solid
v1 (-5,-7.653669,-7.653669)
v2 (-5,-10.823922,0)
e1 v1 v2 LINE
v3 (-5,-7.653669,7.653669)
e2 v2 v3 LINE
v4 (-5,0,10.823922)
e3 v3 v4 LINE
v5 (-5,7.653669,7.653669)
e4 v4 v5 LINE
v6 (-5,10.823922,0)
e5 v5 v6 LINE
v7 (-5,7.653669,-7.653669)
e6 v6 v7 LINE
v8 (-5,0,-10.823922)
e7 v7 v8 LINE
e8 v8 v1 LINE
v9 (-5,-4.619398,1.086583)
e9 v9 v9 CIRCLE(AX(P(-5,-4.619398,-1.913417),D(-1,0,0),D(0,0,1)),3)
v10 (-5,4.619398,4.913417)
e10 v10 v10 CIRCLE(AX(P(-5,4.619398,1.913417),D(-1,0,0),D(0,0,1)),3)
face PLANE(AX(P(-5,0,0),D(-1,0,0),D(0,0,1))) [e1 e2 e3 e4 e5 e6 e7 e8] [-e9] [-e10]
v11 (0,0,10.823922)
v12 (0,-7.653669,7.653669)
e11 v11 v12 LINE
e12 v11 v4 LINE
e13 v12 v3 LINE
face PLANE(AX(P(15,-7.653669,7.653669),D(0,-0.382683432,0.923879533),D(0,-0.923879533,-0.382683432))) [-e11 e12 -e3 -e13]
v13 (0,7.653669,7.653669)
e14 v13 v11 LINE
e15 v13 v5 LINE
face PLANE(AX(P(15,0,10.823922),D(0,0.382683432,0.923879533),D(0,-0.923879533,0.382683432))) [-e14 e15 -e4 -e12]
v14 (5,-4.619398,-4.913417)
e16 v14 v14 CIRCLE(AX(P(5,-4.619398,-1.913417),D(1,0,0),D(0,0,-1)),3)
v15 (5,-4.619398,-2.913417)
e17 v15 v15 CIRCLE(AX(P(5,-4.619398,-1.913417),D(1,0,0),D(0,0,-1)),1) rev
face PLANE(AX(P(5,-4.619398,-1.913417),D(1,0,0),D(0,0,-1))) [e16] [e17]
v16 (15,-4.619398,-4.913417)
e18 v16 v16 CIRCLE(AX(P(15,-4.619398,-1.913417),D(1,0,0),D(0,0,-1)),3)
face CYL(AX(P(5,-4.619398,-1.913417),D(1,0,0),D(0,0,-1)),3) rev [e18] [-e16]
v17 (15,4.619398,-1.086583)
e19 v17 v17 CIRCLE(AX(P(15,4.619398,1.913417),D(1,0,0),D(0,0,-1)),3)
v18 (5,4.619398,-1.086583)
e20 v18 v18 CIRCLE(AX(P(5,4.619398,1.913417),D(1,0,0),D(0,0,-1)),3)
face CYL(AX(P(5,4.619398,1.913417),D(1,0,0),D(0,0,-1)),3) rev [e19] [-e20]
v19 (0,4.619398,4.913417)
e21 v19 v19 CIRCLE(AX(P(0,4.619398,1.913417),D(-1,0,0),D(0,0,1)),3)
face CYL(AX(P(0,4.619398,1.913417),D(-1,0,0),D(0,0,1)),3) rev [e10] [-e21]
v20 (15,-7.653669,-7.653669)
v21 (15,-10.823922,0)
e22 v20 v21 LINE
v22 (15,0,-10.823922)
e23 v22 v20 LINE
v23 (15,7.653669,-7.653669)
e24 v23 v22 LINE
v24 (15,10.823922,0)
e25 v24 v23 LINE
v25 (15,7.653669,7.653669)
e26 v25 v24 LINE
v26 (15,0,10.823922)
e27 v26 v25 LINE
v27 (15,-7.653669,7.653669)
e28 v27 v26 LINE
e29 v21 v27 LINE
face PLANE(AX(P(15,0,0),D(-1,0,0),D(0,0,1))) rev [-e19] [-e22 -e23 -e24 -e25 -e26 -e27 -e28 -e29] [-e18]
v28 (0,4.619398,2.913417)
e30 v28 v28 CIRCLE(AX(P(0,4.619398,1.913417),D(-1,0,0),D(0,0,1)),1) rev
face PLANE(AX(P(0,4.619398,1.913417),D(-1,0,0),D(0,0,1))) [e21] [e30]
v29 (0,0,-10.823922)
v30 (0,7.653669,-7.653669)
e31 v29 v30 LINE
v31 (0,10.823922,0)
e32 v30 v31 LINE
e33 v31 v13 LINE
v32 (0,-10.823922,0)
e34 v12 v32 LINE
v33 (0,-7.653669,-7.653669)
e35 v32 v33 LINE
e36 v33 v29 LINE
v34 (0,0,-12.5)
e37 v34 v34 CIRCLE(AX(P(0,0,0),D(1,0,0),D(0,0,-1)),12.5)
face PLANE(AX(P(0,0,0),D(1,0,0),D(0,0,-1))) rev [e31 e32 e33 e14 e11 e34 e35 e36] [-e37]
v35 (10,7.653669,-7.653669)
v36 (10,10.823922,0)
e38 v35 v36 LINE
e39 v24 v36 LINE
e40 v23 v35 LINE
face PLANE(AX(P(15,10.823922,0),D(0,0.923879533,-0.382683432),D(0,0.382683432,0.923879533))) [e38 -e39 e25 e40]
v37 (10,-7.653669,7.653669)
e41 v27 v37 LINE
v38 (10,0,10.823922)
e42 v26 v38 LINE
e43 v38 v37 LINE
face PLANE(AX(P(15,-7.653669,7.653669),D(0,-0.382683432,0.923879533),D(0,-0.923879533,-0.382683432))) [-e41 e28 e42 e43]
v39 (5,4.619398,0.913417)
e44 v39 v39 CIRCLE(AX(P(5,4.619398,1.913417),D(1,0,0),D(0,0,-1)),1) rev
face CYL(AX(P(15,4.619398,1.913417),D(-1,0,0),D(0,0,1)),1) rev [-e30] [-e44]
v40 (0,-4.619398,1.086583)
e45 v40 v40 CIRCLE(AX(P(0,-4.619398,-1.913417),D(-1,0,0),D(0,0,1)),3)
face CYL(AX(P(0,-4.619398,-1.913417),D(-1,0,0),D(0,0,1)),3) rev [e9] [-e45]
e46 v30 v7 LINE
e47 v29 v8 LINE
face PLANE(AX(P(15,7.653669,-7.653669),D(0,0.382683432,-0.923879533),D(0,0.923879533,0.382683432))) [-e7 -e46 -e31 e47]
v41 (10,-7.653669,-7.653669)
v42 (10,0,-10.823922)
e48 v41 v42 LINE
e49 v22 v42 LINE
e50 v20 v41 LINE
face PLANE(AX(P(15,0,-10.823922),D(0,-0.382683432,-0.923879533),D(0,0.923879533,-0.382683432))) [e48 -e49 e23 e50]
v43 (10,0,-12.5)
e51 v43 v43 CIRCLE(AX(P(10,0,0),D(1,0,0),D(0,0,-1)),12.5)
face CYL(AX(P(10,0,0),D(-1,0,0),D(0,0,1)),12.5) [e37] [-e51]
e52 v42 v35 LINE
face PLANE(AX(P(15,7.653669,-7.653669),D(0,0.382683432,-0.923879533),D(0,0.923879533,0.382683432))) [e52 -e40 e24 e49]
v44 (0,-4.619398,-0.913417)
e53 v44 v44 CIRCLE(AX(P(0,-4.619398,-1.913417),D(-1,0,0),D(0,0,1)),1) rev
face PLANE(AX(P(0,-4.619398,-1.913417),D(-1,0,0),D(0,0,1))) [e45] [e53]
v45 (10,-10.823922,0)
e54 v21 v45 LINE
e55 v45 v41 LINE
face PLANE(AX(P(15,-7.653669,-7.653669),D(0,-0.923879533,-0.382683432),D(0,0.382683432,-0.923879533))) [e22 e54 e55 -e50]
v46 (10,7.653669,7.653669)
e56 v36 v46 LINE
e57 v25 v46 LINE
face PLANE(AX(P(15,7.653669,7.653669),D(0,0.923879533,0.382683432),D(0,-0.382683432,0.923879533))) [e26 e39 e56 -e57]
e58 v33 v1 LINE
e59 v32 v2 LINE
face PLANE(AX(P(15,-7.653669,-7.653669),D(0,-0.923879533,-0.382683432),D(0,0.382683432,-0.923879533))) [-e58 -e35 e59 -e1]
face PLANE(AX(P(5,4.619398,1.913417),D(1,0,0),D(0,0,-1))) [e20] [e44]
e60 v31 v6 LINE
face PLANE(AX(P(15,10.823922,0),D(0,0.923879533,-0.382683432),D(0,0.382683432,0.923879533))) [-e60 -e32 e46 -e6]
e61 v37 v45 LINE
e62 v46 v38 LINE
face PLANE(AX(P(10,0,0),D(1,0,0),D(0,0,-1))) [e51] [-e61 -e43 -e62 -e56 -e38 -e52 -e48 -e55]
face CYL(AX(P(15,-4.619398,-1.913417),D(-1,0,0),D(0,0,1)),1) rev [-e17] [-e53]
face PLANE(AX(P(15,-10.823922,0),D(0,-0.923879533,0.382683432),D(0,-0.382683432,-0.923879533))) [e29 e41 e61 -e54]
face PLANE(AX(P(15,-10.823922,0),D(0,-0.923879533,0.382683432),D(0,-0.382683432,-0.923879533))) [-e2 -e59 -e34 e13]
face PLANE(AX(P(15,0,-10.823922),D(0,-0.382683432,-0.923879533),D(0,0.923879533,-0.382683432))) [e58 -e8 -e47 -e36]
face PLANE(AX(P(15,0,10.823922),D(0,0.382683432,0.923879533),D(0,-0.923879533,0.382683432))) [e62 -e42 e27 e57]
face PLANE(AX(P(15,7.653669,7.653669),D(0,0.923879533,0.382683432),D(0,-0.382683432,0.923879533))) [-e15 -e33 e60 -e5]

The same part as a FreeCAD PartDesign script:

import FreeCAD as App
import Part
import Sketcher
Q = App.Units.Quantity


def add_polygon(sketch, points):
    """Adds a closed chain of lines whose ends are joined by coincident constraints."""
    first, n = sketch.GeometryCount, len(points)
    for a, b in zip(points, points[1:] + points[:1]):
        sketch.addGeometry(Part.LineSegment(App.Vector(*a, 0), App.Vector(*b, 0)), False)
    for i in range(n):
        sketch.addConstraint(Sketcher.Constraint("Coincident", first + i, 2, first + (i + 1) % n, 1))

doc = App.newDocument("Part")
body = doc.addObject("PartDesign::Body", "Body")

# Sketch on YZ plane
sketch1 = doc.addObject("Sketcher::SketchObject", "Sketch")
body.addObject(sketch1)
sketch1.AttachmentSupport = (doc.YZ_Plane, [""])
sketch1.MapMode = "FlatFace"
sketch1.addGeometry(Part.Circle(App.Vector(0, 0, 0), App.Vector(0, 0, 1), 12), False)
sketch1.addConstraint([
    Sketcher.Constraint("Coincident", 0, 3, -1, 1),
    Sketcher.Constraint("Diameter", 0, 25.0),
])
pad1 = doc.addObject("PartDesign::Pad", "Pad")
body.addObject(pad1)
pad1.Profile = sketch1
pad1.Length = 10

# Sketch on YZ plane
sketch2 = doc.addObject("Sketcher::SketchObject", "Sketch001")
body.addObject(sketch2)
sketch2.AttachmentSupport = (doc.YZ_Plane, [""])
sketch2.MapMode = "FlatFace"
add_polygon(sketch2, [(0, 11), (8, 8), (11, 0), (8, -8), (0, -11), (-8, -8), (-11, 0), (-8, 8)])  # lines 0-7
sketch2.addConstraint([
    Sketcher.Constraint("Symmetric", 0, 2, 4, 2, -1, 1),
    Sketcher.Constraint("Symmetric", 1, 2, 5, 2, -1, 1),
    Sketcher.Constraint("Symmetric", 2, 2, 6, 2, -1, 1),
    Sketcher.Constraint("Symmetric", 3, 2, 7, 2, -1, 1),
    Sketcher.Constraint("Symmetric", 2, 2, 4, 2, -2),
    Sketcher.Constraint("PointOnObject", 1, 2, -1),
    Sketcher.Constraint("PointOnObject", 3, 2, -2),
    Sketcher.Constraint("Perpendicular", 0, 2),
    Sketcher.Constraint("Equal", 0, 1),
    Sketcher.Constraint("Angle", 0, Q("-22.5 deg")),
    Sketcher.Constraint("Distance", 0, 8.284271),
])
pad2 = doc.addObject("PartDesign::Pad", "Pad001")
body.addObject(pad2)
pad2.Profile = sketch2
pad2.Type = "TwoLengths"
pad2.Length = 5
pad2.Length2 = 15
pad2.Reversed = True

# Sketch on YZ plane
sketch3 = doc.addObject("Sketcher::SketchObject", "Sketch002")
body.addObject(sketch3)
sketch3.AttachmentSupport = (doc.YZ_Plane, [""])
sketch3.MapMode = "FlatFace"
sketch3.AttachmentOffset = App.Placement(App.Vector(0, 0, -5), App.Rotation())
sketch3.addGeometry([
    Part.Circle(App.Vector(4.6, 1.9, 0), App.Vector(0, 0, 1), 1),
    Part.Circle(App.Vector(-4.6, -1.9, 0), App.Vector(0, 0, 1), 1),
], False)
sketch3.addConstraint([
    Sketcher.Constraint("Equal", 0, 1),
    Sketcher.Constraint("Symmetric", 0, 3, 1, 3, -1, 1),
    Sketcher.Constraint("Diameter", 0, 2.0),
    Sketcher.Constraint("DistanceX", -1, 1, 0, 3, 4.619398),
    Sketcher.Constraint("DistanceY", -1, 1, 0, 3, 1.913417),
])
pocket1 = doc.addObject("PartDesign::Pocket", "Pocket")
body.addObject(pocket1)
pocket1.Profile = sketch3
pocket1.Length = 20
pocket1.Reversed = True

# Sketch on YZ plane
sketch4 = doc.addObject("Sketcher::SketchObject", "Sketch003")
body.addObject(sketch4)
sketch4.AttachmentSupport = (doc.YZ_Plane, [""])
sketch4.MapMode = "FlatFace"
sketch4.AttachmentOffset = App.Placement(App.Vector(0, 0, -5), App.Rotation())
sketch4.addGeometry([
    Part.Circle(App.Vector(-4.6, -1.9, 0), App.Vector(0, 0, 1), 3),
    Part.Circle(App.Vector(4.6, 1.9, 0), App.Vector(0, 0, 1), 3),
], False)
sketch4.addConstraint([
    Sketcher.Constraint("Equal", 0, 1),
    Sketcher.Constraint("Symmetric", 0, 3, 1, 3, -1, 1),
    Sketcher.Constraint("Diameter", 0, 6.0),
    Sketcher.Constraint("DistanceX", 0, 3, -1, 1, 4.619398),
    Sketcher.Constraint("DistanceY", 0, 3, -1, 1, 1.913417),
])
pocket2 = doc.addObject("PartDesign::Pocket", "Pocket001")
body.addObject(pocket2)
pocket2.Profile = sketch4
pocket2.Length = 5
pocket2.Reversed = True

# Sketch on YZ plane
sketch5 = doc.addObject("Sketcher::SketchObject", "Sketch004")
body.addObject(sketch5)
sketch5.AttachmentSupport = (doc.YZ_Plane, [""])
sketch5.MapMode = "FlatFace"
sketch5.AttachmentOffset = App.Placement(App.Vector(0, 0, 5), App.Rotation())
sketch5.addGeometry([
    Part.Circle(App.Vector(-4.6, -1.9, 0), App.Vector(0, 0, 1), 3),
    Part.Circle(App.Vector(4.6, 1.9, 0), App.Vector(0, 0, 1), 3),
], False)
sketch5.addConstraint([
    Sketcher.Constraint("Equal", 0, 1),
    Sketcher.Constraint("Symmetric", 0, 3, 1, 3, -1, 1),
    Sketcher.Constraint("Diameter", 0, 6.0),
    Sketcher.Constraint("DistanceX", 0, 3, -1, 1, 4.619398),
    Sketcher.Constraint("DistanceY", 0, 3, -1, 1, 1.913417),
])
pocket3 = doc.addObject("PartDesign::Pocket", "Pocket002")
body.addObject(pocket3)
pocket3.Profile = sketch5
pocket3.Length = 10
pocket3.Reversed = True

doc.recompute()
